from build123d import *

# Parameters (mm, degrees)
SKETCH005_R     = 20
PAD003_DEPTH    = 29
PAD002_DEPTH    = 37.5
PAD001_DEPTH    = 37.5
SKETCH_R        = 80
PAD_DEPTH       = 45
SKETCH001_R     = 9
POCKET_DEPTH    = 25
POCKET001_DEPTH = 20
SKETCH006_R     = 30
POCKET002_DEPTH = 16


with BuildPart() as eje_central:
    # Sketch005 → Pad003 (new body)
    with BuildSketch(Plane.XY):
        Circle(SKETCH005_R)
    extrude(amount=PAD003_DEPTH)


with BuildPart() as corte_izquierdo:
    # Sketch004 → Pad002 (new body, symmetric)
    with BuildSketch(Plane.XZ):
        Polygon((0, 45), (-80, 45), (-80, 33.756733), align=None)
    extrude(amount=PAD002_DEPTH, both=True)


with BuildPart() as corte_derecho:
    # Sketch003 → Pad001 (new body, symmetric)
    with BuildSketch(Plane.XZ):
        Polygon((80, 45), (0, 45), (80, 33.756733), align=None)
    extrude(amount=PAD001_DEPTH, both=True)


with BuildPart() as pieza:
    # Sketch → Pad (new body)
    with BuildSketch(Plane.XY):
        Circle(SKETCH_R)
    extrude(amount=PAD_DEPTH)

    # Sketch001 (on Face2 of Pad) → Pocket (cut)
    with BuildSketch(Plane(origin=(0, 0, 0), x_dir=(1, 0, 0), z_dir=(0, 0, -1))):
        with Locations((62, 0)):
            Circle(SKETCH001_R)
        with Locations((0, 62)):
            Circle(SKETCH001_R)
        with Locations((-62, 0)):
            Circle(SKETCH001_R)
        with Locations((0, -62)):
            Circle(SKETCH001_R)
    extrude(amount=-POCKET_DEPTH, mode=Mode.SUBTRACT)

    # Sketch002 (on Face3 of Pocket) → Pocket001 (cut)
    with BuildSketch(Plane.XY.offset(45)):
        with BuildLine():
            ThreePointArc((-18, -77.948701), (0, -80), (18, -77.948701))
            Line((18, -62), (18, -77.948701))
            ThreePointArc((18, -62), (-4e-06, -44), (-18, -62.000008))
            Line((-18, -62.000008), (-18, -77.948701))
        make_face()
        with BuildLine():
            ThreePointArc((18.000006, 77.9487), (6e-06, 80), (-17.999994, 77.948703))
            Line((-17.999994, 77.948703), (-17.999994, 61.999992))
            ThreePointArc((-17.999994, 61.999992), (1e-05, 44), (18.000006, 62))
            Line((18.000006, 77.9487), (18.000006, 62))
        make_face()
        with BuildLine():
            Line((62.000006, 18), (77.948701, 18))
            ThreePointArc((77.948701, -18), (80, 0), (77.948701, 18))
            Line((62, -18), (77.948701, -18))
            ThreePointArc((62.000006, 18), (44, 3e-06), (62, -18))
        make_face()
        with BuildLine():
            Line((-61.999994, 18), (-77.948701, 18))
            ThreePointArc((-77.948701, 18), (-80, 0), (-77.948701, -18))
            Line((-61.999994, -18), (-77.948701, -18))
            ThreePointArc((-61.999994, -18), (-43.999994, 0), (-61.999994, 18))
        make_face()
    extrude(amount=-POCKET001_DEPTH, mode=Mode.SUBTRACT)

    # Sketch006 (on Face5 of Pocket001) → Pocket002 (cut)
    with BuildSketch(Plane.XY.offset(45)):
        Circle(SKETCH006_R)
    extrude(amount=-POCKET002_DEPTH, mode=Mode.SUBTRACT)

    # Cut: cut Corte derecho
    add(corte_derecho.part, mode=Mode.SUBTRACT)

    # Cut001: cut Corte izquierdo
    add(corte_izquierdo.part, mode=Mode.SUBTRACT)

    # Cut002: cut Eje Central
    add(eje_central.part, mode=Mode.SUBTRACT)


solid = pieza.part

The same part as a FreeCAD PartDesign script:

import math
import FreeCAD as App
import Part
import Sketcher
from FreeCAD import Vector
Q = App.Units.Quantity

doc = App.newDocument("Part")
params = doc.addObject("Spreadsheet::Sheet", "Params")
for row, (alias, value) in enumerate([
    ("sketch1_diameter", "40 mm"),
    ("pad1_length", "29 mm"),
    ("sketch2_width", "80 mm"),
    ("pad2_length", "75 mm"),
    ("sketch3_width", "80 mm"),
    ("pad3_length", "75 mm"),
    ("sketch4_diameter", "160 mm"),
    ("pad4_length", "45 mm"),
    ("sketch5_diameter", "18 mm"),
    ("pocket1_length", "25 mm"),
    ("sketch6_radius", "18 mm"),
    ("pocket2_length", "20 mm"),
    ("sketch7_diameter", "60 mm"),
    ("pocket3_length", "16 mm"),
], start=1):
    params.set(f"A{row}", alias)
    params.set(f"B{row}", "=" + value)
    params.setAlias(f"B{row}", alias)

body = doc.addObject("PartDesign::Body", "Body")

# Sketch on XY plane
sketch1 = doc.addObject("Sketcher::SketchObject", "Sketch")
body.addObject(sketch1)
sketch1.AttachmentSupport = (doc.XY_Plane, [""])
sketch1.MapMode = "FlatFace"
sketch1.addGeometry(Part.Circle(Vector(0, 0, 0), Vector(0, 0, 1), 20), False)
sketch1.addConstraint(Sketcher.Constraint("Coincident", 0, 3, -1, 1))
sketch1.addConstraint(Sketcher.Constraint("Diameter", 0, Q("40 mm")))
sketch1.setExpression("Constraints[1]", "Params.sketch1_diameter")
pad1 = doc.addObject("PartDesign::Pad", "Pad")
body.addObject(pad1)
pad1.Profile = sketch1
pad1.setExpression("Length", "Params.pad1_length")
body2 = doc.addObject("PartDesign::Body", "Body001")

# Sketch on XZ plane
sketch2 = doc.addObject("Sketcher::SketchObject", "Sketch001")
body2.addObject(sketch2)
sketch2.AttachmentSupport = (doc.getObject("XZ_Plane001"), [""])
sketch2.MapMode = "FlatFace"
sketch2.addGeometry(Part.LineSegment(Vector(0, 45, 0), Vector(-80, 45, 0)), False)
sketch2.addGeometry(Part.LineSegment(Vector(-80, 45, 0), Vector(-80, 34, 0)), False)
sketch2.addGeometry(Part.LineSegment(Vector(-80, 34, 0), Vector(0, 45, 0)), False)
sketch2.addConstraint(Sketcher.Constraint("Coincident", 0, 2, 1, 1))
sketch2.addConstraint(Sketcher.Constraint("Coincident", 1, 2, 2, 1))
sketch2.addConstraint(Sketcher.Constraint("Coincident", 2, 2, 0, 1))
sketch2.addConstraint(Sketcher.Constraint("Horizontal", 0))
sketch2.addConstraint(Sketcher.Constraint("Vertical", 1))
sketch2.addConstraint(Sketcher.Constraint("PointOnObject", 2, 2, -2))
sketch2.addConstraint(Sketcher.Constraint("DistanceX", 0, 2, 0, 1, Q("80 mm")))
sketch2.addConstraint(Sketcher.Constraint("Angle", 2, Q("8 deg")))
sketch2.addConstraint(Sketcher.Constraint("DistanceY", -1, 1, 0, 2, Q("45 mm")))
sketch2.setExpression("Constraints[6]", "Params.sketch2_width")
pad2 = doc.addObject("PartDesign::Pad", "Pad001")
body2.addObject(pad2)
pad2.Profile = sketch2
pad2.setExpression("Length", "Params.pad2_length")
pad2.Midplane = True
body3 = doc.addObject("PartDesign::Body", "Body002")

# Sketch on XZ plane
sketch3 = doc.addObject("Sketcher::SketchObject", "Sketch002")
body3.addObject(sketch3)
sketch3.AttachmentSupport = (doc.getObject("XZ_Plane002"), [""])
sketch3.MapMode = "FlatFace"
sketch3.addGeometry(Part.LineSegment(Vector(80, 45, 0), Vector(0, 45, 0)), False)
sketch3.addGeometry(Part.LineSegment(Vector(0, 45, 0), Vector(80, 34, 0)), False)
sketch3.addGeometry(Part.LineSegment(Vector(80, 34, 0), Vector(80, 45, 0)), False)
sketch3.addConstraint(Sketcher.Constraint("Coincident", 0, 2, 1, 1))
sketch3.addConstraint(Sketcher.Constraint("Coincident", 1, 2, 2, 1))
sketch3.addConstraint(Sketcher.Constraint("Coincident", 2, 2, 0, 1))
sketch3.addConstraint(Sketcher.Constraint("Horizontal", 0))
sketch3.addConstraint(Sketcher.Constraint("Vertical", 2))
sketch3.addConstraint(Sketcher.Constraint("PointOnObject", 0, 2, -2))
sketch3.addConstraint(Sketcher.Constraint("DistanceX", 0, 2, 0, 1, Q("80 mm")))
sketch3.addConstraint(Sketcher.Constraint("Angle", 1, Q("-8 deg")))
sketch3.addConstraint(Sketcher.Constraint("DistanceY", -1, 1, 0, 2, Q("45 mm")))
sketch3.setExpression("Constraints[6]", "Params.sketch3_width")
pad3 = doc.addObject("PartDesign::Pad", "Pad002")
body3.addObject(pad3)
pad3.Profile = sketch3
pad3.setExpression("Length", "Params.pad3_length")
pad3.Midplane = True
body4 = doc.addObject("PartDesign::Body", "Body003")

# Sketch on XY plane
sketch4 = doc.addObject("Sketcher::SketchObject", "Sketch003")
body4.addObject(sketch4)
sketch4.AttachmentSupport = (doc.getObject("XY_Plane003"), [""])
sketch4.MapMode = "FlatFace"
sketch4.addGeometry(Part.Circle(Vector(0, 0, 0), Vector(0, 0, 1), 80), False)
sketch4.addConstraint(Sketcher.Constraint("Coincident", 0, 3, -1, 1))
sketch4.addConstraint(Sketcher.Constraint("Diameter", 0, Q("160 mm")))
sketch4.setExpression("Constraints[1]", "Params.sketch4_diameter")
pad4 = doc.addObject("PartDesign::Pad", "Pad003")
body4.addObject(pad4)
pad4.Profile = sketch4
pad4.setExpression("Length", "Params.pad4_length")

# Sketch on XY plane
sketch5 = doc.addObject("Sketcher::SketchObject", "Sketch004")
body4.addObject(sketch5)
sketch5.AttachmentSupport = (doc.getObject("XY_Plane003"), [""])
sketch5.MapMode = "FlatFace"
sketch5.addGeometry(Part.Circle(Vector(62, 0, 0), Vector(0, 0, 1), 9), False)
sketch5.addGeometry(Part.Circle(Vector(0, -62, 0), Vector(0, 0, 1), 9), False)
sketch5.addGeometry(Part.Circle(Vector(-62, 0, 0), Vector(0, 0, 1), 9), False)
sketch5.addGeometry(Part.Circle(Vector(0, 62, 0), Vector(0, 0, 1), 9), False)
sketch5.addConstraint(Sketcher.Constraint("Equal", 0, 1))
sketch5.addConstraint(Sketcher.Constraint("Equal", 1, 2))
sketch5.addConstraint(Sketcher.Constraint("Equal", 2, 3))
sketch5.addConstraint(Sketcher.Constraint("Symmetric", 0, 3, 2, 3, -1, 1))
sketch5.addConstraint(Sketcher.Constraint("Symmetric", 1, 3, 3, 3, -1, 1))
sketch5.addConstraint(Sketcher.Constraint("PointOnObject", 0, 3, -1))
sketch5.addConstraint(Sketcher.Constraint("PointOnObject", 1, 3, -2))
sketch5.addConstraint(Sketcher.Constraint("Diameter", 0, Q("18 mm")))
sketch5.addConstraint(Sketcher.Constraint("DistanceX", -1, 1, 0, 3, Q("62 mm")))
sketch5.addConstraint(Sketcher.Constraint("DistanceY", 1, 3, -1, 1, Q("62 mm")))
sketch5.setExpression("Constraints[7]", "Params.sketch5_diameter")
pocket1 = doc.addObject("PartDesign::Pocket", "Pocket")
body4.addObject(pocket1)
pocket1.Profile = sketch5
pocket1.setExpression("Length", "Params.pocket1_length")
pocket1.Reversed = True

# Sketch on XY plane
sketch6 = doc.addObject("Sketcher::SketchObject", "Sketch005")
body4.addObject(sketch6)
sketch6.AttachmentSupport = (doc.getObject("XY_Plane003"), [""])
sketch6.MapMode = "FlatFace"
sketch6.AttachmentOffset = App.Placement(Vector(0, 0, 45), App.Rotation())
sketch6.addGeometry(Part.ArcOfCircle(Part.Circle(Vector(0, 0, 0), Vector(0, 0, 1), 80), math.radians(-103), math.radians(-77)), False)
sketch6.addGeometry(Part.LineSegment(Vector(18, -78, 0), Vector(18, -62, 0)), False)
sketch6.addGeometry(Part.ArcOfCircle(Part.Circle(Vector(0, -62, 0), Vector(0, 0, 1), 18), math.radians(0), math.radians(180)), False)
sketch6.addGeometry(Part.LineSegment(Vector(-18, -62, 0), Vector(-18, -78, 0)), False)
sketch6.addGeometry(Part.ArcOfCircle(Part.Circle(Vector(0, 0, 0), Vector(0, 0, 1), 80), math.radians(77), math.radians(103)), False)
sketch6.addGeometry(Part.LineSegment(Vector(-18, 78, 0), Vector(-18, 62, 0)), False)
sketch6.addGeometry(Part.ArcOfCircle(Part.Circle(Vector(0, 62, 0), Vector(0, 0, 1), 18), math.radians(-180), math.radians(0)), False)
sketch6.addGeometry(Part.LineSegment(Vector(18, 62, 0), Vector(18, 78, 0)), False)
sketch6.addGeometry(Part.LineSegment(Vector(78, 18, 0), Vector(62, 18, 0)), False)
sketch6.addGeometry(Part.ArcOfCircle(Part.Circle(Vector(62, 0, 0), Vector(0, 0, 1), 18), math.radians(90), math.radians(270)), False)
sketch6.addGeometry(Part.LineSegment(Vector(62, -18, 0), Vector(78, -18, 0)), False)
sketch6.addGeometry(Part.ArcOfCircle(Part.Circle(Vector(0, 0, 0), Vector(0, 0, 1), 80), math.radians(-13), math.radians(13)), False)
sketch6.addGeometry(Part.LineSegment(Vector(-62, 18, 0), Vector(-78, 18, 0)), False)
sketch6.addGeometry(Part.ArcOfCircle(Part.Circle(Vector(0, 0, 0), Vector(0, 0, 1), 80), math.radians(167), math.radians(193)), False)
sketch6.addGeometry(Part.LineSegment(Vector(-78, -18, 0), Vector(-62, -18, 0)), False)
sketch6.addGeometry(Part.ArcOfCircle(Part.Circle(Vector(-62, 0, 0), Vector(0, 0, 1), 18), math.radians(-90), math.radians(90)), False)
sketch6.addConstraint(Sketcher.Constraint("Coincident", 0, 2, 1, 1))
sketch6.addConstraint(Sketcher.Constraint("Tangent", 1, 2, 2, 1))
sketch6.addConstraint(Sketcher.Constraint("Tangent", 2, 2, 3, 1))
sketch6.addConstraint(Sketcher.Constraint("Coincident", 3, 2, 0, 1))
sketch6.addConstraint(Sketcher.Constraint("Coincident", 4, 2, 5, 1))
sketch6.addConstraint(Sketcher.Constraint("Tangent", 5, 2, 6, 1))
sketch6.addConstraint(Sketcher.Constraint("Tangent", 6, 2, 7, 1))
sketch6.addConstraint(Sketcher.Constraint("Coincident", 7, 2, 4, 1))
sketch6.addConstraint(Sketcher.Constraint("Tangent", 8, 2, 9, 1))
sketch6.addConstraint(Sketcher.Constraint("Tangent", 9, 2, 10, 1))
sketch6.addConstraint(Sketcher.Constraint("Coincident", 10, 2, 11, 1))
sketch6.addConstraint(Sketcher.Constraint("Coincident", 11, 2, 8, 1))
sketch6.addConstraint(Sketcher.Constraint("Coincident", 12, 2, 13, 1))
sketch6.addConstraint(Sketcher.Constraint("Coincident", 13, 2, 14, 1))
sketch6.addConstraint(Sketcher.Constraint("Tangent", 14, 2, 15, 1))
sketch6.addConstraint(Sketcher.Constraint("Tangent", 15, 2, 12, 1))
sketch6.addConstraint(Sketcher.Constraint("Vertical", 1))
sketch6.addConstraint(Sketcher.Constraint("Vertical", 3))
sketch6.addConstraint(Sketcher.Constraint("Vertical", 5))
sketch6.addConstraint(Sketcher.Constraint("Vertical", 7))
sketch6.addConstraint(Sketcher.Constraint("Horizontal", 8))
sketch6.addConstraint(Sketcher.Constraint("Horizontal", 10))
sketch6.addConstraint(Sketcher.Constraint("Horizontal", 12))
sketch6.addConstraint(Sketcher.Constraint("Horizontal", 14))
sketch6.addConstraint(Sketcher.Constraint("Coincident", 0, 3, -1, 1))
sketch6.addConstraint(Sketcher.Constraint("Coincident", 11, 3, -1, 1))
sketch6.addConstraint(Sketcher.Constraint("Coincident", 13, 3, -1, 1))
sketch6.addConstraint(Sketcher.Constraint("Equal", 2, 6))
sketch6.addConstraint(Sketcher.Constraint("Equal", 6, 9))
sketch6.addConstraint(Sketcher.Constraint("Equal", 0, 11))
sketch6.addConstraint(Sketcher.Constraint("Equal", 11, 13))
sketch6.addConstraint(Sketcher.Constraint("Equal", 9, 15))
sketch6.addConstraint(Sketcher.Constraint("Symmetric", 2, 3, 6, 3, -1, 1))
sketch6.addConstraint(Sketcher.Constraint("Symmetric", 9, 3, 15, 3, -1, 1))
sketch6.addConstraint(Sketcher.Constraint("Symmetric", 3, 2, 4, 2, -1))
sketch6.addConstraint(Sketcher.Constraint("PointOnObject", 4, 3, -2))
sketch6.addConstraint(Sketcher.Constraint("PointOnObject", 9, 3, -1))
sketch6.addConstraint(Sketcher.Constraint("Equal", 10, 1))
sketch6.addConstraint(Sketcher.Constraint("Radius", 2, Q("18 mm")))
sketch6.addConstraint(Sketcher.Constraint("DistanceY", 2, 3, -1, 1, Q("62 mm")))
sketch6.addConstraint(Sketcher.Constraint("DistanceX", 10, 1, 10, 2, Q("15.948701 mm")))
sketch6.addConstraint(Sketcher.Constraint("Radius", 4, Q("80.000016 mm")))
sketch6.setExpression("Constraints[38]", "Params.sketch6_radius")
pocket2 = doc.addObject("PartDesign::Pocket", "Pocket001")
body4.addObject(pocket2)
pocket2.Profile = sketch6
pocket2.setExpression("Length", "Params.pocket2_length")

# Sketch on XY plane
sketch7 = doc.addObject("Sketcher::SketchObject", "Sketch006")
body4.addObject(sketch7)
sketch7.AttachmentSupport = (doc.getObject("XY_Plane003"), [""])
sketch7.MapMode = "FlatFace"
sketch7.AttachmentOffset = App.Placement(Vector(0, 0, 45), App.Rotation())
sketch7.addGeometry(Part.Circle(Vector(0, 0, 0), Vector(0, 0, 1), 30), False)
sketch7.addConstraint(Sketcher.Constraint("Coincident", 0, 3, -1, 1))
sketch7.addConstraint(Sketcher.Constraint("Diameter", 0, Q("60 mm")))
sketch7.setExpression("Constraints[1]", "Params.sketch7_diameter")
pocket3 = doc.addObject("PartDesign::Pocket", "Pocket002")
body4.addObject(pocket3)
pocket3.Profile = sketch7
pocket3.setExpression("Length", "Params.pocket3_length")
doc.recompute()

boolean = doc.addObject("PartDesign::Boolean", "Boolean")
body4.addObject(boolean)
boolean.Type = "Cut"
boolean.addObjects([body3])
doc.recompute()

boolean2 = doc.addObject("PartDesign::Boolean", "Boolean001")
body4.addObject(boolean2)
boolean2.Type = "Cut"
boolean2.addObjects([body2])
doc.recompute()

boolean3 = doc.addObject("PartDesign::Boolean", "Boolean002")
body4.addObject(boolean3)
boolean3.Type = "Cut"
boolean3.addObjects([body])

doc.recompute()
